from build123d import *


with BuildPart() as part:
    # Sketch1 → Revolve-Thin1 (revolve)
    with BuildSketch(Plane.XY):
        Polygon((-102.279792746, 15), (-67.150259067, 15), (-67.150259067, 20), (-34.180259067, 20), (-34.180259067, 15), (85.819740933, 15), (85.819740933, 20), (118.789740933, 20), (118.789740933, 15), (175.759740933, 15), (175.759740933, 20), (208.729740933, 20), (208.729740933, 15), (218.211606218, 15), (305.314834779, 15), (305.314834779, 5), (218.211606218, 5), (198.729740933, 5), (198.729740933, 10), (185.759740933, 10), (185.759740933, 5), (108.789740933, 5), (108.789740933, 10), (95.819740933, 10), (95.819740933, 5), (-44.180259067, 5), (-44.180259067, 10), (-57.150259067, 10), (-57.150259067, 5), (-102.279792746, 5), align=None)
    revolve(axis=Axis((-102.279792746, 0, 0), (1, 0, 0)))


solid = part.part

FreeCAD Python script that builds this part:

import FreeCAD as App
import Part
import Sketcher
from FreeCAD import Vector


def add_polygon(sketch, points):
    """Adds a closed chain of lines whose ends are joined by coincident constraints."""
    first, n = sketch.GeometryCount, len(points)
    for a, b in zip(points, points[1:] + points[:1]):
        sketch.addGeometry(Part.LineSegment(App.Vector(*a, 0), App.Vector(*b, 0)), False)
    for i in range(n):
        sketch.addConstraint(Sketcher.Constraint("Coincident", first + i, 2, first + (i + 1) % n, 1))

doc = App.newDocument("Part")
params = doc.addObject("Spreadsheet::Sheet", "Params")
for row, (alias, value) in enumerate([
    ("sketch1_width", "140 mm"),
    ("sketch1_width2", "120 mm"),
    ("sketch1_height", "10 mm"),
    ("sketch1_height2", "5 mm"),
    ("sketch1_width3", "12.97 mm"),
    ("revolution_angle", "360 deg"),
], start=1):
    params.set(f"A{row}", alias)
    params.set(f"B{row}", "=" + value)
    params.setAlias(f"B{row}", alias)

body = doc.addObject("PartDesign::Body", "Body")

# Sketch on XY plane
sketch1 = body.newObject("Sketcher::SketchObject", "Sketch")
sketch1.AttachmentSupport = (doc.getObject("XY_Plane"), [""])
sketch1.MapMode = "FlatFace"
add_polygon(sketch1, [(-67, 15), (-102, 15), (-102, 5), (-57, 5), (-57, 10), (-44, 10), (-44, 5), (96, 5), (96, 10), (109, 10), (109, 5), (186, 5), (186, 10), (199, 10), (199, 5), (305, 5), (305, 15), (209, 15), (209, 20), (176, 20), (176, 15), (119, 15), (119, 20), (86, 20), (86, 15), (-34, 15), (-34, 20), (-67, 20)])  # lines 0-27
sketch1.addConstraint([
    Sketcher.Constraint("Horizontal", 0),
    Sketcher.Constraint("Vertical", 1),
    Sketcher.Constraint("Horizontal", 2),
    Sketcher.Constraint("Vertical", 3),
    Sketcher.Constraint("Horizontal", 4),
    Sketcher.Constraint("Vertical", 5),
    Sketcher.Constraint("Horizontal", 6),
    Sketcher.Constraint("Vertical", 7),
    Sketcher.Constraint("Horizontal", 8),
    Sketcher.Constraint("Vertical", 9),
    Sketcher.Constraint("Horizontal", 10),
    Sketcher.Constraint("Vertical", 11),
    Sketcher.Constraint("Horizontal", 12),
    Sketcher.Constraint("Vertical", 13),
    Sketcher.Constraint("Horizontal", 14),
    Sketcher.Constraint("Vertical", 15),
    Sketcher.Constraint("Horizontal", 16),
    Sketcher.Constraint("Vertical", 17),
    Sketcher.Constraint("Horizontal", 18),
    Sketcher.Constraint("Vertical", 19),
    Sketcher.Constraint("Horizontal", 20),
    Sketcher.Constraint("Vertical", 21),
    Sketcher.Constraint("Horizontal", 22),
    Sketcher.Constraint("Vertical", 23),
    Sketcher.Constraint("Horizontal", 24),
    Sketcher.Constraint("Vertical", 25),
    Sketcher.Constraint("Horizontal", 26),
    Sketcher.Constraint("Vertical", 27),
    Sketcher.Constraint("Horizontal", 2, 2, 5, 2),
    Sketcher.Constraint("Horizontal", 4, 2, 7, 2),
    Sketcher.Constraint("Horizontal", 6, 2, 9, 2),
    Sketcher.Constraint("Horizontal", 8, 2, 11, 2),
    Sketcher.Constraint("Horizontal", 10, 2, 13, 2),
    Sketcher.Constraint("Horizontal", 0, 2, 15, 2),
    Sketcher.Constraint("Horizontal", 16, 2, 19, 2),
    Sketcher.Constraint("Horizontal", 18, 2, 21, 2),
    Sketcher.Constraint("Horizontal", 20, 2, 23, 2),
    Sketcher.Constraint("Horizontal", 22, 2, 25, 2),
    Sketcher.Constraint("Equal", 4, 8),
    Sketcher.Constraint("Equal", 8, 12),
    Sketcher.Constraint("Equal", 18, 22),
    Sketcher.Constraint("Equal", 22, 26),
    Sketcher.Constraint("Equal", 13, 17),
    Sketcher.Constraint("DistanceX", 6, 1, 6, 2, 140.0),
    Sketcher.Constraint("DistanceX", 24, 2, 24, 1, 120.0),
    Sketcher.Constraint("DistanceY", 1, 2, 1, 1, 10.0),
    Sketcher.Constraint("DistanceY", 3, 1, 3, 2, 5.0),
    Sketcher.Constraint("DistanceY", -1, 1, 0, 2, 15.0),
    Sketcher.Constraint("DistanceX", 12, 2, 16, 2, 10.0),
    Sketcher.Constraint("DistanceX", 18, 2, 11, 2, 10.0),
    Sketcher.Constraint("DistanceX", 8, 2, 20, 2, 10.0),
    Sketcher.Constraint("DistanceX", 4, 1, 4, 2, 12.97),
    Sketcher.Constraint("DistanceX", 10, 1, 10, 2, 76.97),
    Sketcher.Constraint("DistanceX", 0, 2, 0, 1, 35.129534),
    Sketcher.Constraint("DistanceX", 14, 1, 14, 2, 106.585094),
    Sketcher.Constraint("DistanceX", 2, 2, -1, 1, 57.150259),
])
sketch1.setExpression("Constraints[71]", "Params.sketch1_width")
sketch1.setExpression("Constraints[72]", "Params.sketch1_width2")
sketch1.setExpression("Constraints[73]", "Params.sketch1_height")
sketch1.setExpression("Constraints[74]", "Params.sketch1_height2")
sketch1.setExpression("Constraints[79]", "Params.sketch1_width3")
revolution = body.newObject("PartDesign::Revolution", "Revolution")
revolution.Profile = sketch1
revolution.ReferenceAxis = (sketch1, ["H_Axis"])
revolution.setExpression("Angle", "Params.revolution_angle")

doc.recompute()
